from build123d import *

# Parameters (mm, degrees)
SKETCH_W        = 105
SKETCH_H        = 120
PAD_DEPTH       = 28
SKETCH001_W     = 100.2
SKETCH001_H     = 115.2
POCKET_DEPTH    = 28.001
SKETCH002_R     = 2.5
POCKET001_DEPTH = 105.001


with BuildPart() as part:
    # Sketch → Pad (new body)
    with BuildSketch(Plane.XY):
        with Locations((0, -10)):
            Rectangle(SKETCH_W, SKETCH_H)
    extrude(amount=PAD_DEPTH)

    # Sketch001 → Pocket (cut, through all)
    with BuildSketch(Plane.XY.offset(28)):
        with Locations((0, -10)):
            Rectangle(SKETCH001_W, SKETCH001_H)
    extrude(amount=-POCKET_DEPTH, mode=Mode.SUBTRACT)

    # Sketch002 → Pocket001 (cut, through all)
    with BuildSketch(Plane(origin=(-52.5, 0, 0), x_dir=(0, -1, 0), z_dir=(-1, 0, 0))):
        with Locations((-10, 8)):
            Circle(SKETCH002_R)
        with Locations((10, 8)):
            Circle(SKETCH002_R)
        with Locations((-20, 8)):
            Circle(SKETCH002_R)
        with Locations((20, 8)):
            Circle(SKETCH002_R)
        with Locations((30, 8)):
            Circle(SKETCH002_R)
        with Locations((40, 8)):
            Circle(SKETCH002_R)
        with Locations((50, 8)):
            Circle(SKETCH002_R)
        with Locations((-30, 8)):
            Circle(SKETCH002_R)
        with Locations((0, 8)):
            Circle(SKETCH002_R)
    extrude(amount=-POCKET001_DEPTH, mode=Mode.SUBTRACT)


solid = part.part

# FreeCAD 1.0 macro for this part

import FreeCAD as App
import Part
import Sketcher

V = App.Vector

doc = App.newDocument("Part")
body = doc.addObject("PartDesign::Body", "Body")

sketch1 = body.newObject("Sketcher::SketchObject", "Sketch")
sketch1.AttachmentSupport = (doc.getObject("XY_Plane"), [""])
sketch1.MapMode = "FlatFace"
sketch1.addGeometry([
    Part.LineSegment(V(-52.5, 50, 0), V(-52.5, -70, 0)),
    Part.LineSegment(V(-52.5, -70, 0), V(52.5, -70, 0)),
    Part.LineSegment(V(52.5, -70, 0), V(52.5, 50, 0)),
    Part.LineSegment(V(52.5, 50, 0), V(-52.5, 50, 0)),
], False)
sketch1.addConstraint([
    Sketcher.Constraint("Coincident", 0, 2, 1, 1),
    Sketcher.Constraint("Coincident", 1, 2, 2, 1),
    Sketcher.Constraint("Coincident", 2, 2, 3, 1),
    Sketcher.Constraint("Coincident", 3, 2, 0, 1),
    Sketcher.Constraint("Vertical", 0),
    Sketcher.Constraint("Horizontal", 1),
    Sketcher.Constraint("Vertical", 2),
    Sketcher.Constraint("Horizontal", 3),
    Sketcher.Constraint("DistanceX", 1, 1, 1, 2, 105.0),
    Sketcher.Constraint("DistanceY", 0, 2, 0, 1, 120.0),
    Sketcher.Constraint("DistanceY", 0, 2, -1, 1, 70.0),
    Sketcher.Constraint("DistanceX", 0, 2, -1, 1, 52.5),
])
pad1 = body.newObject("PartDesign::Pad", "Pad")
pad1.Profile = sketch1
pad1.Length = 28

sketch2 = body.newObject("Sketcher::SketchObject", "Sketch001")
sketch2.AttachmentSupport = (doc.getObject("XY_Plane"), [""])
sketch2.MapMode = "FlatFace"
sketch2.AttachmentOffset = App.Placement(V(0, 0, 28), App.Rotation())
sketch2.addGeometry([
    Part.LineSegment(V(-50.1, 47.6, 0), V(-50.1, -67.6, 0)),
    Part.LineSegment(V(-50.1, -67.6, 0), V(50.1, -67.6, 0)),
    Part.LineSegment(V(50.1, -67.6, 0), V(50.1, 47.6, 0)),
    Part.LineSegment(V(50.1, 47.6, 0), V(-50.1, 47.6, 0)),
], False)
sketch2.addConstraint([
    Sketcher.Constraint("Coincident", 0, 2, 1, 1),
    Sketcher.Constraint("Coincident", 1, 2, 2, 1),
    Sketcher.Constraint("Coincident", 2, 2, 3, 1),
    Sketcher.Constraint("Coincident", 3, 2, 0, 1),
    Sketcher.Constraint("Vertical", 0),
    Sketcher.Constraint("Horizontal", 1),
    Sketcher.Constraint("Vertical", 2),
    Sketcher.Constraint("Horizontal", 3),
    Sketcher.Constraint("DistanceX", 1, 1, 1, 2, 100.2),
    Sketcher.Constraint("DistanceY", 0, 2, 0, 1, 115.2),
    Sketcher.Constraint("DistanceX", 0, 2, -1, 1, 50.1),
    Sketcher.Constraint("DistanceY", 0, 2, -1, 1, 67.6),
])
pocket1 = body.newObject("PartDesign::Pocket", "Pocket")
pocket1.Profile = sketch2
pocket1.Type = "ThroughAll"

sketch3 = body.newObject("Sketcher::SketchObject", "Sketch002")
sketch3.AttachmentSupport = (doc.getObject("YZ_Plane"), [""])
sketch3.MapMode = "FlatFace"
sketch3.AttachmentOffset = App.Placement(V(0, 0, -52.5), App.Rotation())
sketch3.addGeometry([
    Part.Circle(V(10, 8, 0), V(0, 0, 1), 2.5),
    Part.Circle(V(-10, 8, 0), V(0, 0, 1), 2.5),
    Part.Circle(V(20, 8, 0), V(0, 0, 1), 2.5),
    Part.Circle(V(-20, 8, 0), V(0, 0, 1), 2.5),
    Part.Circle(V(-30, 8, 0), V(0, 0, 1), 2.5),
    Part.Circle(V(-40, 8, 0), V(0, 0, 1), 2.5),
    Part.Circle(V(-50, 8, 0), V(0, 0, 1), 2.5),
    Part.Circle(V(30, 8, 0), V(0, 0, 1), 2.5),
    Part.Circle(V(0, 8, 0), V(0, 0, 1), 2.5),
], False)
sketch3.addConstraint([
    Sketcher.Constraint("Equal", 0, 1),
    Sketcher.Constraint("Equal", 1, 2),
    Sketcher.Constraint("Equal", 2, 3),
    Sketcher.Constraint("Equal", 3, 4),
    Sketcher.Constraint("Equal", 4, 5),
    Sketcher.Constraint("Equal", 5, 6),
    Sketcher.Constraint("Equal", 6, 7),
    Sketcher.Constraint("Equal", 7, 8),
    Sketcher.Constraint("Symmetric", 0, 3, 1, 3, -2),
    Sketcher.Constraint("Symmetric", 2, 3, 3, 3, -2),
    Sketcher.Constraint("Symmetric", 4, 3, 7, 3, -2),
    Sketcher.Constraint("PointOnObject", 8, 3, -2),
    Sketcher.Constraint("Horizontal", 1, 3, 2, 3),
    Sketcher.Constraint("Horizontal", 3, 3, 4, 3),
    Sketcher.Constraint("Horizontal", 4, 3, 5, 3),
    Sketcher.Constraint("Horizontal", 5, 3, 6, 3),
    Sketcher.Constraint("Horizontal", 7, 3, 8, 3),
    Sketcher.Constraint("Diameter", 0, 5.0),
    Sketcher.Constraint("DistanceX", -1, 1, 0, 3, 10.0),
    Sketcher.Constraint("DistanceY", -1, 1, 0, 3, 8.0),
    Sketcher.Constraint("DistanceX", -1, 1, 2, 3, 20.0),
    Sketcher.Constraint("DistanceX", 4, 3, -1, 1, 30.0),
    Sketcher.Constraint("DistanceX", 5, 3, -1, 1, 40.0),
    Sketcher.Constraint("DistanceX", 6, 3, -1, 1, 50.0),
])
pocket2 = body.newObject("PartDesign::Pocket", "Pocket001")
pocket2.Profile = sketch3
pocket2.Type = "ThroughAll"
pocket2.Reversed = True

doc.recompute()
